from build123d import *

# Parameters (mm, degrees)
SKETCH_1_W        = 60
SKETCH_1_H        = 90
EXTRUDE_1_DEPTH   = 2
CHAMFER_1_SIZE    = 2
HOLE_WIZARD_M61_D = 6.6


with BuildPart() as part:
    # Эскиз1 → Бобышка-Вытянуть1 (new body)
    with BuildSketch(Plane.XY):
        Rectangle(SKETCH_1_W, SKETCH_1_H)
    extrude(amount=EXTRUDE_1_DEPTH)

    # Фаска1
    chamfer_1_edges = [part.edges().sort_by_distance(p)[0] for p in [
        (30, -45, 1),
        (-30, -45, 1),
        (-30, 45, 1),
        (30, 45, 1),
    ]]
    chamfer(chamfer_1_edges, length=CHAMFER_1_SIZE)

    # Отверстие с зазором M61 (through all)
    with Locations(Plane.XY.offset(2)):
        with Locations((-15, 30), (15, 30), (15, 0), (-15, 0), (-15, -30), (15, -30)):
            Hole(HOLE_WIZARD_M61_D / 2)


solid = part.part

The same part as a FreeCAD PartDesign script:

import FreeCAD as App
import Part
import Sketcher
from FreeCAD import Vector
Q = App.Units.Quantity


def edges_at(feature, points):
    """Names of the edges that pass closest to the given points."""
    edges = feature.Shape.Edges
    near = lambda p: min(range(len(edges)), key=lambda i: edges[i].distToShape(Part.Vertex(*p))[0])
    return sorted({f"Edge{near(p) + 1}" for p in points})


def add_polygon(sketch, points):
    """Adds a closed chain of lines whose ends are joined by coincident constraints."""
    first, n = sketch.GeometryCount, len(points)
    for a, b in zip(points, points[1:] + points[:1]):
        sketch.addGeometry(Part.LineSegment(App.Vector(*a, 0), App.Vector(*b, 0)), False)
    for i in range(n):
        sketch.addConstraint(Sketcher.Constraint("Coincident", first + i, 2, first + (i + 1) % n, 1))

doc = App.newDocument("Part")
body = doc.addObject("PartDesign::Body", "Body")

sketch1 = doc.addObject("Sketcher::SketchObject", "Sketch")
body.addObject(sketch1)
sketch1.AttachmentSupport = (doc.XY_Plane, [""])
sketch1.MapMode = "FlatFace"
add_polygon(sketch1, [(-30, 45), (-30, -45), (30, -45), (30, 45)])
sketch1.addConstraint([
    Sketcher.Constraint("Vertical", 0),
    Sketcher.Constraint("Horizontal", 1),
    Sketcher.Constraint("Vertical", 2),
    Sketcher.Constraint("Horizontal", 3),
    Sketcher.Constraint("Symmetric", 0, 2, 2, 2, -1, 1),
    Sketcher.Constraint("DistanceX", 1, 1, 1, 2, Q("60 mm")),
    Sketcher.Constraint("DistanceY", 0, 2, 0, 1, Q("90 mm")),
])
pad1 = doc.addObject("PartDesign::Pad", "Pad")
body.addObject(pad1)
pad1.Profile = sketch1
pad1.Length = 2
doc.recompute()

chamfer = doc.addObject("PartDesign::Chamfer", "Chamfer")
body.addObject(chamfer)
chamfer.Base = (pad1, edges_at(pad1, [
    (30, -45, 1),
    (-30, -45, 1),
    (-30, 45, 1),
    (30, 45, 1),
]))
chamfer.Size = 2

sketch2 = doc.addObject("Sketcher::SketchObject", "Sketch001")
body.addObject(sketch2)
sketch2.AttachmentSupport = (doc.XY_Plane, [""])
sketch2.MapMode = "FlatFace"
sketch2.AttachmentOffset = App.Placement(Vector(0, 0, 2), App.Rotation())
sketch2.addGeometry([
    Part.Circle(Vector(-15, 30, 0), Vector(0, 0, 1), 3.3),
    Part.Circle(Vector(15, 30, 0), Vector(0, 0, 1), 3.3),
    Part.Circle(Vector(15, 0, 0), Vector(0, 0, 1), 3.3),
    Part.Circle(Vector(-15, 0, 0), Vector(0, 0, 1), 3.3),
    Part.Circle(Vector(-15, -30, 0), Vector(0, 0, 1), 3.3),
    Part.Circle(Vector(15, -30, 0), Vector(0, 0, 1), 3.3),
], False)
sketch2.addConstraint([
    Sketcher.Constraint("Equal", 0, 1),
    Sketcher.Constraint("Equal", 1, 2),
    Sketcher.Constraint("Equal", 2, 3),
    Sketcher.Constraint("Equal", 3, 4),
    Sketcher.Constraint("Equal", 4, 5),
    Sketcher.Constraint("Symmetric", 2, 3, 3, 3, -1, 1),
    Sketcher.Constraint("Symmetric", 1, 3, 4, 3, -1, 1),
    Sketcher.Constraint("Symmetric", 0, 3, 5, 3, -1, 1),
    Sketcher.Constraint("Symmetric", 0, 3, 1, 3, -2),
    Sketcher.Constraint("PointOnObject", 2, 3, -1),
    Sketcher.Constraint("Vertical", 1, 3, 2, 3),
    Sketcher.Constraint("Diameter", 0, Q("6.6 mm")),
    Sketcher.Constraint("DistanceX", 0, 3, -1, 1, Q("15 mm")),
    Sketcher.Constraint("DistanceY", -1, 1, 0, 3, Q("30 mm")),
])
doc.recompute()
hole = doc.addObject("PartDesign::Hole", "Hole")
body.addObject(hole)
hole.Profile = sketch2
hole.ThreadType = "None"
hole.Diameter = 6.6
hole.DepthType = "ThroughAll"

doc.recompute()
